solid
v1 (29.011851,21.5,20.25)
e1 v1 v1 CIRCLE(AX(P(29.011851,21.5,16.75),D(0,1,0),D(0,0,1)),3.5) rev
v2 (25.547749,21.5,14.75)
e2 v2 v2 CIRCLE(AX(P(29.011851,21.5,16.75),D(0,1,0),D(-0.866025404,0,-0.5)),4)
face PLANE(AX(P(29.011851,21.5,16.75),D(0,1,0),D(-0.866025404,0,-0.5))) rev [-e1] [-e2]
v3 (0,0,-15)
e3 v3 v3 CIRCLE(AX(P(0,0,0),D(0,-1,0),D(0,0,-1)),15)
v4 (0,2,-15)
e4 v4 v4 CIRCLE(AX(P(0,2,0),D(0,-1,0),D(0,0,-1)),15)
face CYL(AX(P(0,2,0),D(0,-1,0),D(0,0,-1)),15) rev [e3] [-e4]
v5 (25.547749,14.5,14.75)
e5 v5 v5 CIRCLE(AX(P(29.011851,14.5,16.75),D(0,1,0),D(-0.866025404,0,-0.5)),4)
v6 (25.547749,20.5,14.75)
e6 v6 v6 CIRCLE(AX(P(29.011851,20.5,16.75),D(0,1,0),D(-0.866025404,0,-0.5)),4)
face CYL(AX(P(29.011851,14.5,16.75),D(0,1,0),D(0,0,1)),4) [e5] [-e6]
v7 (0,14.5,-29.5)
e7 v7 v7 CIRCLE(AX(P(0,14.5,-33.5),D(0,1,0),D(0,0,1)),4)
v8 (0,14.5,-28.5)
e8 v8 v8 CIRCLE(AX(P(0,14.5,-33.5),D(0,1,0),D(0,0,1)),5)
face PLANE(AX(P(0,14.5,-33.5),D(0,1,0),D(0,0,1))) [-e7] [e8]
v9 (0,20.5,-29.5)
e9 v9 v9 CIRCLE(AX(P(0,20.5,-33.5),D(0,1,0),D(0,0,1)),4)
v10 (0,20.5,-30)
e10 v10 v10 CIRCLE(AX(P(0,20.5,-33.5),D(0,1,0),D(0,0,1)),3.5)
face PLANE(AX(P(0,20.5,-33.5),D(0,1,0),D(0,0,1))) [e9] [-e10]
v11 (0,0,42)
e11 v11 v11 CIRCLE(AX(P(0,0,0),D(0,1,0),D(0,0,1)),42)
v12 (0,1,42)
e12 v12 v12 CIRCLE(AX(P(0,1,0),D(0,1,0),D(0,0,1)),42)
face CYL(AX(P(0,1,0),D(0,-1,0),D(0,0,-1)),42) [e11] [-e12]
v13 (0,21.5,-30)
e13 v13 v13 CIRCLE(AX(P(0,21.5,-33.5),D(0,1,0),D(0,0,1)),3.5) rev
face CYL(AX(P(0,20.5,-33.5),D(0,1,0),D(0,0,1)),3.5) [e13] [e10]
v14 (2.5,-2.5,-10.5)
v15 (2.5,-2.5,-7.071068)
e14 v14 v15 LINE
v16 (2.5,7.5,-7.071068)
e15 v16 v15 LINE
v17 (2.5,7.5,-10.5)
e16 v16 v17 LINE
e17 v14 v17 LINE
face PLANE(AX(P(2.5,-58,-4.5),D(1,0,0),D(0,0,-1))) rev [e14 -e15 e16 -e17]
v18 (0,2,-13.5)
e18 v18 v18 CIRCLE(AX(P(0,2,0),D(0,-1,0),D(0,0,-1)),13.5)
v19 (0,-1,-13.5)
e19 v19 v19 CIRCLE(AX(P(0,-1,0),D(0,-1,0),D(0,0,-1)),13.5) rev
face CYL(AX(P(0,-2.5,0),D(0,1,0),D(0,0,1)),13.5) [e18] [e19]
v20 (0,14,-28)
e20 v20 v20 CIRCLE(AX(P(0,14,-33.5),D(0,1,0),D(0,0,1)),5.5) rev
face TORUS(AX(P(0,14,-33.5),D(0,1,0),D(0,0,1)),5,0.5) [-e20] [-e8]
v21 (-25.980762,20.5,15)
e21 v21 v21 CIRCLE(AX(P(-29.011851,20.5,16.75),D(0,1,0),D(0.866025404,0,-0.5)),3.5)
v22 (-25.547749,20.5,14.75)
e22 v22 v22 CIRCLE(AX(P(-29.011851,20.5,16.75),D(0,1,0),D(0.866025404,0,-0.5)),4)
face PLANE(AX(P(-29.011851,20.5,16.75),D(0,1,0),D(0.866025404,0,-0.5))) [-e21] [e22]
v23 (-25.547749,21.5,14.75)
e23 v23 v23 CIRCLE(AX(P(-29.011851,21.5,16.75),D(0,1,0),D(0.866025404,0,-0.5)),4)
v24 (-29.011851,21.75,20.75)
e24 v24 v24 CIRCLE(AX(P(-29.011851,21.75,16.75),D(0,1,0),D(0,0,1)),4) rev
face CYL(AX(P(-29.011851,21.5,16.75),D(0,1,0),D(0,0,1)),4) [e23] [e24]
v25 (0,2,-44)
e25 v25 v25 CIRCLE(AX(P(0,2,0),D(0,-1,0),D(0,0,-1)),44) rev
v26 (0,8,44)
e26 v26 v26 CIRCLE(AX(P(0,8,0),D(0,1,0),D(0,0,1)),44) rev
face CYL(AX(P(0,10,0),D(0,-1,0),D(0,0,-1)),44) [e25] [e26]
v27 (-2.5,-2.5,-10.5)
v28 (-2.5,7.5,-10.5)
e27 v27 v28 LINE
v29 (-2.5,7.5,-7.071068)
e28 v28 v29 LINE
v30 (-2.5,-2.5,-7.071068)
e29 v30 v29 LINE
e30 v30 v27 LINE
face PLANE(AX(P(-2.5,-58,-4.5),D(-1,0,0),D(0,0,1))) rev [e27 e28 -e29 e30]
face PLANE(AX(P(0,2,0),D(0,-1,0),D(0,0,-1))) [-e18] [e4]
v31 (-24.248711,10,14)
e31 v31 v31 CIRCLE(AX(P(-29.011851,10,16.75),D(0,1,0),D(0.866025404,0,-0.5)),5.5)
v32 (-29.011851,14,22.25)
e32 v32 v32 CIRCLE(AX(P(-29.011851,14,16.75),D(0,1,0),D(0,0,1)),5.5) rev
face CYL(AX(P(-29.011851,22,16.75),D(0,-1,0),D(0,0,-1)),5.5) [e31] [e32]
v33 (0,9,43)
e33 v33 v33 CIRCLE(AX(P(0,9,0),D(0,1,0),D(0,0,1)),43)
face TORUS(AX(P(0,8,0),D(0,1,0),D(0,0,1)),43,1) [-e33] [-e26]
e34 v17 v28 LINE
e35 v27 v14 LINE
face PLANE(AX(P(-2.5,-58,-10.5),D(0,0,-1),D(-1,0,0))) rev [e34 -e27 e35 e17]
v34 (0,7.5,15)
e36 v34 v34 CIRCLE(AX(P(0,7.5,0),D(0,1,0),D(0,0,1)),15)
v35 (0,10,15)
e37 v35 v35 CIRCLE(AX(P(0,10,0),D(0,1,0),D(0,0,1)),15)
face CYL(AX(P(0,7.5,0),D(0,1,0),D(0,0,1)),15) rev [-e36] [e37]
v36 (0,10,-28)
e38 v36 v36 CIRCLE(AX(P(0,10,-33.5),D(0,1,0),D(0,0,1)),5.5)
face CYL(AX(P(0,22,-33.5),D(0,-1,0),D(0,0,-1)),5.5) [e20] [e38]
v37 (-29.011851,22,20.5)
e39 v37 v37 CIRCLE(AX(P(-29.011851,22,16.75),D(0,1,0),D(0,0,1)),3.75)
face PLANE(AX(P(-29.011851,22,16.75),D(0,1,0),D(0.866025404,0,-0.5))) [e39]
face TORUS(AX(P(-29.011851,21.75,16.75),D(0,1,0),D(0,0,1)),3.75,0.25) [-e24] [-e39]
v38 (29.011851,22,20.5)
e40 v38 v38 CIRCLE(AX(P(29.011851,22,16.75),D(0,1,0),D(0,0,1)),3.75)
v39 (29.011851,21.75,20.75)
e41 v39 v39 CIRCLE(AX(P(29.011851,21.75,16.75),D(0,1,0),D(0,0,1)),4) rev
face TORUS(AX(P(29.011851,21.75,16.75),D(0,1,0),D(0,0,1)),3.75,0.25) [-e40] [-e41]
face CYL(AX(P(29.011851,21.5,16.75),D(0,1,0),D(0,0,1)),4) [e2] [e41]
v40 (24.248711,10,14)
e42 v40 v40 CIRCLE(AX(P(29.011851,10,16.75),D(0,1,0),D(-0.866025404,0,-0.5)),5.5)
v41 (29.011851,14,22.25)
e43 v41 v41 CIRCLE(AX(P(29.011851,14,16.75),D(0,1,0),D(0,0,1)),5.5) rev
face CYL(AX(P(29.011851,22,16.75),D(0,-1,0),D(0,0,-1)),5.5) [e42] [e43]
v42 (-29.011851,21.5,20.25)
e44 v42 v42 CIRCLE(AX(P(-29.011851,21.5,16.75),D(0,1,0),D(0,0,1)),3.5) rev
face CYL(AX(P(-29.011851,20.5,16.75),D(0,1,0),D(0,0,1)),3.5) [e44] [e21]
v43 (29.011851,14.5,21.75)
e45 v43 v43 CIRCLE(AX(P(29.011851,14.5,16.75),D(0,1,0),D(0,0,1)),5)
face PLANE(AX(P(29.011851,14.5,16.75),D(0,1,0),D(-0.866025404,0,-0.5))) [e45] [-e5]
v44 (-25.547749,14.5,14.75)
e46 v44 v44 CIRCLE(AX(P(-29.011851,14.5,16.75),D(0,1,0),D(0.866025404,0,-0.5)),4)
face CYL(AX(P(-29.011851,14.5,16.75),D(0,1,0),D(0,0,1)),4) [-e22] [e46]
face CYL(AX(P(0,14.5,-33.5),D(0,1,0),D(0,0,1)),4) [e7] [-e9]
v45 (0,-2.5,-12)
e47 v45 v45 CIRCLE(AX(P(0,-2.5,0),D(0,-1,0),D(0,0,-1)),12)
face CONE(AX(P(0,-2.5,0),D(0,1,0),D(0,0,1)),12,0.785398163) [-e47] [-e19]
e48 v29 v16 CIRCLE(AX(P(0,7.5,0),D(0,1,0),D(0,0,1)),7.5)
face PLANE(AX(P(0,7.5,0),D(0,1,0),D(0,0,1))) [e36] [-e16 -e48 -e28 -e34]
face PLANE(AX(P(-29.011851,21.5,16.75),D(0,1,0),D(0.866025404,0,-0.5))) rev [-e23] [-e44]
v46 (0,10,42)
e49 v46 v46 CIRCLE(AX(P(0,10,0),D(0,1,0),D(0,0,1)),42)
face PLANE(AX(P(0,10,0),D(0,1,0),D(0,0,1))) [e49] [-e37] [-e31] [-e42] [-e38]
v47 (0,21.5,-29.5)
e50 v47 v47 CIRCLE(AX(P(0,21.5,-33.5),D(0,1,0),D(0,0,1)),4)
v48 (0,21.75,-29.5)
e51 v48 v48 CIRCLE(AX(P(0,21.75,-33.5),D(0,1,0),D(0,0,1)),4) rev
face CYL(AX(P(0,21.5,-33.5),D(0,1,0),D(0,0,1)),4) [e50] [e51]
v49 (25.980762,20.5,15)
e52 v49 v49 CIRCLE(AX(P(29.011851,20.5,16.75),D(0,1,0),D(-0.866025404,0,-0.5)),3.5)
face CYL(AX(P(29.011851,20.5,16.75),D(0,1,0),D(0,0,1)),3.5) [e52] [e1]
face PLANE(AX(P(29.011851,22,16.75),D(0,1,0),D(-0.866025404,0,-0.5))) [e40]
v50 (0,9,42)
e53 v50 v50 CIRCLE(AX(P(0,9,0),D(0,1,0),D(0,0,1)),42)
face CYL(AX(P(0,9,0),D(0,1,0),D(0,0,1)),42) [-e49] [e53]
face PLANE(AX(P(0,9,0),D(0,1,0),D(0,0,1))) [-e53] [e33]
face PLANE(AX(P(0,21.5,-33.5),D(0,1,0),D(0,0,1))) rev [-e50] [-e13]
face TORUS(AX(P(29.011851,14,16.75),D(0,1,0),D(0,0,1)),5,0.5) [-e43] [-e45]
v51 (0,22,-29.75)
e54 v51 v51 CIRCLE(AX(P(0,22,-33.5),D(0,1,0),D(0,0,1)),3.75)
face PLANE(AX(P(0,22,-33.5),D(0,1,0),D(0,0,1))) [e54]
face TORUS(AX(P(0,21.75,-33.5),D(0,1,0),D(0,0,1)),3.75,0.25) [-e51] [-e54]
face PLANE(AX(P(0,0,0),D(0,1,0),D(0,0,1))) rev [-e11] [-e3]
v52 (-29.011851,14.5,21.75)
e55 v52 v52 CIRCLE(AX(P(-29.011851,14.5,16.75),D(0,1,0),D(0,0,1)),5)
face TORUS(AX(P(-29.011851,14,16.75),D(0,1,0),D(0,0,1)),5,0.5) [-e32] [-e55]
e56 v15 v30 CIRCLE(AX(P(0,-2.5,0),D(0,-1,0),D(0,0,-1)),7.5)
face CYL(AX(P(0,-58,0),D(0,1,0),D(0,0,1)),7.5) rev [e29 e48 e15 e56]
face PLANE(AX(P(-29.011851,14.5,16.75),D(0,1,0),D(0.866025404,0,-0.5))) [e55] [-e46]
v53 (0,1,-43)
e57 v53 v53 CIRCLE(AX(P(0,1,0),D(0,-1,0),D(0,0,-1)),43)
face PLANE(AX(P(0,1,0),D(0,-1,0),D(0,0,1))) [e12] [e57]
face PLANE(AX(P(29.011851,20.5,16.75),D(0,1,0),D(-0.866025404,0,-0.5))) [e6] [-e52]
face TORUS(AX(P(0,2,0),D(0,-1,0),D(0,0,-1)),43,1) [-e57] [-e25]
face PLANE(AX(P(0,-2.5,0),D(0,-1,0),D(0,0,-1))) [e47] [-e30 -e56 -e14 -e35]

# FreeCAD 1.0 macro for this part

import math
import FreeCAD as App
import Part
import Sketcher

V = App.Vector


def edges_at(feature, points):
    """Names of the edges that pass closest to the given points."""
    edges = feature.Shape.Edges
    near = lambda p: min(range(len(edges)), key=lambda i: edges[i].distToShape(Part.Vertex(*p))[0])
    return sorted({f"Edge{near(p) + 1}" for p in points})


def add_polygon(sketch, points):
    """Adds a closed chain of lines whose ends are joined by coincident constraints."""
    first, n = sketch.GeometryCount, len(points)
    for a, b in zip(points, points[1:] + points[:1]):
        sketch.addGeometry(Part.LineSegment(App.Vector(*a, 0), App.Vector(*b, 0)), False)
    for i in range(n):
        sketch.addConstraint(Sketcher.Constraint("Coincident", first + i, 2, first + (i + 1) % n, 1))

doc = App.newDocument("Part")
body = doc.addObject("PartDesign::Body", "Body")

sketch1 = body.newObject("Sketcher::SketchObject", "Sketch")
sketch1.AttachmentSupport = (doc.getObject("XZ_Plane"), [""])
sketch1.MapMode = "FlatFace"
sketch1.addGeometry(Part.Circle(V(0, 0, 0), V(0, 0, 1), 44), False)
sketch1.addConstraint(Sketcher.Constraint("Coincident", 0, 3, -1, 1))
sketch1.addConstraint(Sketcher.Constraint("Diameter", 0, 88.0))
pad1 = body.newObject("PartDesign::Pad", "Pad")
pad1.Profile = sketch1
pad1.Length = 10
pad1.Reversed = True

sketch2 = body.newObject("Sketcher::SketchObject", "Sketch001")
sketch2.AttachmentSupport = (doc.getObject("XZ_Plane"), [""])
sketch2.MapMode = "FlatFace"
sketch2.AttachmentOffset = App.Placement(V(0, 0, -10), App.Rotation())
sketch2.addGeometry(Part.Circle(V(0, 0, 0), V(0, 0, 1), 44), False)
sketch2.addGeometry(Part.Circle(V(0, 0, 0), V(0, 0, 1), 42), False)
sketch2.addConstraint(Sketcher.Constraint("Coincident", 0, 3, -1, 1))
sketch2.addConstraint(Sketcher.Constraint("Coincident", 1, 3, -1, 1))
sketch2.addConstraint(Sketcher.Constraint("Diameter", 0, 88.0))
sketch2.addConstraint(Sketcher.Constraint("Diameter", 1, 84.0))
pocket1 = body.newObject("PartDesign::Pocket", "Pocket")
pocket1.Profile = sketch2
pocket1.Length = 1
pocket1.Reversed = True
doc.recompute()

datumplane = body.newObject("PartDesign::Plane", "DatumPlane")
datumplane.AttachmentSupport = (doc.getObject("XZ_Plane"), [""])
datumplane.MapMode = "FlatFace"
datumplane.AttachmentOffset = App.Placement(V(0, 0, -5), App.Rotation())
mirrored = body.newObject("PartDesign::Mirrored", "Mirrored")
mirrored.Originals = [pocket1]
mirrored.MirrorPlane = (datumplane, [""])
body.Tip = mirrored
doc.recompute()

fillet = body.newObject("PartDesign::Fillet", "Fillet")
fillet.Base = (mirrored, edges_at(mirrored, [(-44, 1, 0), (-44, 9, 0)]))
fillet.Radius = 1

sketch3 = body.newObject("Sketcher::SketchObject", "Sketch002")
sketch3.AttachmentSupport = (doc.getObject("XZ_Plane"), [""])
sketch3.MapMode = "FlatFace"
sketch3.AttachmentOffset = App.Placement(V(0, 0, -10), App.Rotation())
sketch3.addGeometry(Part.Circle(V(0, 0, 0), V(0, 0, 1), 15), False)
sketch3.addConstraint(Sketcher.Constraint("Coincident", 0, 3, -1, 1))
sketch3.addConstraint(Sketcher.Constraint("Diameter", 0, 30.0))
pocket2 = body.newObject("PartDesign::Pocket", "Pocket001")
pocket2.Profile = sketch3
pocket2.Length = 2.5
pocket2.Reversed = True

sketch4 = body.newObject("Sketcher::SketchObject", "Sketch003")
sketch4.AttachmentSupport = (doc.getObject("XZ_Plane"), [""])
sketch4.MapMode = "FlatFace"
sketch4.AttachmentOffset = App.Placement(V(0, 0, -7.5), App.Rotation())
sketch4.addGeometry(Part.Circle(V(0, 0, 0), V(0, 0, 1), 7.5), False)
sketch4.addConstraint(Sketcher.Constraint("Coincident", 0, 3, -1, 1))
sketch4.addConstraint(Sketcher.Constraint("Diameter", 0, 15.0))
pocket3 = body.newObject("PartDesign::Pocket", "Pocket002")
pocket3.Profile = sketch4
pocket3.Length = 65.5
pocket3.Reversed = True

sketch5 = body.newObject("Sketcher::SketchObject", "Sketch004")
sketch5.AttachmentSupport = (doc.getObject("XZ_Plane"), [""])
sketch5.MapMode = "FlatFace"
sketch5.AttachmentOffset = App.Placement(V(0, 0, -7.5), App.Rotation())
add_polygon(sketch5, [(-2.5, -10.5), (-2.5, -4.5), (2.5, -4.5), (2.5, -10.5)])
sketch5.addConstraint(Sketcher.Constraint("Vertical", 0))
sketch5.addConstraint(Sketcher.Constraint("Horizontal", 1))
sketch5.addConstraint(Sketcher.Constraint("Vertical", 2))
sketch5.addConstraint(Sketcher.Constraint("Horizontal", 3))
sketch5.addConstraint(Sketcher.Constraint("DistanceX", 1, 1, 1, 2, 5.0))
sketch5.addConstraint(Sketcher.Constraint("DistanceY", 0, 1, 0, 2, 6.0))
sketch5.addConstraint(Sketcher.Constraint("DistanceX", 0, 2, -1, 1, 2.5))
sketch5.addConstraint(Sketcher.Constraint("DistanceY", 0, 2, -1, 1, 4.5))
pocket4 = body.newObject("PartDesign::Pocket", "Pocket003")
pocket4.Profile = sketch5
pocket4.Length = 65.5
pocket4.Reversed = True

sketch6 = body.newObject("Sketcher::SketchObject", "Sketch005")
sketch6.AttachmentSupport = (doc.getObject("XZ_Plane"), [""])
sketch6.MapMode = "FlatFace"
sketch6.addGeometry(Part.Circle(V(0, 0, 0), V(0, 0, 1), 15), False)
sketch6.addConstraint(Sketcher.Constraint("Coincident", 0, 3, -1, 1))
sketch6.addConstraint(Sketcher.Constraint("Diameter", 0, 30.0))
pocket5 = body.newObject("PartDesign::Pocket", "Pocket004")
pocket5.Profile = sketch6
pocket5.Length = 2

sketch7 = body.newObject("Sketcher::SketchObject", "Sketch006")
sketch7.AttachmentSupport = (doc.getObject("XZ_Plane"), [""])
sketch7.MapMode = "FlatFace"
sketch7.AttachmentOffset = App.Placement(V(0, 0, -2), App.Rotation())
sketch7.addGeometry(Part.Circle(V(0, 0, 0), V(0, 0, 1), 13.5), False)
sketch7.addGeometry(Part.LineSegment(V(2.5, -7.071068, 0), V(2.5, -10.5, 0)), False)
sketch7.addGeometry(Part.LineSegment(V(2.5, -10.5, 0), V(-2.5, -10.5, 0)), False)
sketch7.addGeometry(Part.LineSegment(V(-2.5, -10.5, 0), V(-2.5, -7.071068, 0)), False)
sketch7.addGeometry(Part.ArcOfCircle(Part.Circle(V(0, 0, 0), V(0, 0, 1), 7.5), math.radians(-70.528779), math.radians(250.528779)), False)
sketch7.addConstraint(Sketcher.Constraint("Coincident", 1, 2, 2, 1))
sketch7.addConstraint(Sketcher.Constraint("Coincident", 2, 2, 3, 1))
sketch7.addConstraint(Sketcher.Constraint("Coincident", 3, 2, 4, 2))
sketch7.addConstraint(Sketcher.Constraint("Coincident", 4, 1, 1, 1))
sketch7.addConstraint(Sketcher.Constraint("Vertical", 1))
sketch7.addConstraint(Sketcher.Constraint("Horizontal", 2))
sketch7.addConstraint(Sketcher.Constraint("Vertical", 3))
sketch7.addConstraint(Sketcher.Constraint("Coincident", 0, 3, -1, 1))
sketch7.addConstraint(Sketcher.Constraint("Coincident", 4, 3, -1, 1))
sketch7.addConstraint(Sketcher.Constraint("Horizontal", 3, 2, 4, 1))
sketch7.addConstraint(Sketcher.Constraint("Diameter", 0, 27.0))
sketch7.addConstraint(Sketcher.Constraint("Radius", 4, 7.5))
sketch7.addConstraint(Sketcher.Constraint("DistanceX", 2, 2, 2, 1, 5.0))
sketch7.addConstraint(Sketcher.Constraint("DistanceY", 1, 2, -1, 1, 10.5))
pad2 = body.newObject("PartDesign::Pad", "Pad001")
pad2.Profile = sketch7
pad2.Length = 4.5
doc.recompute()

chamfer = body.newObject("PartDesign::Chamfer", "Chamfer")
chamfer.Base = (pad2, edges_at(pad2, [(-13.5, -2.5, 0)]))
chamfer.Size = 1.5

sketch8 = body.newObject("Sketcher::SketchObject", "Sketch007")
sketch8.AttachmentSupport = (doc.getObject("XZ_Plane"), [""])
sketch8.MapMode = "FlatFace"
sketch8.AttachmentOffset = App.Placement(V(0, 0, -10), App.Rotation())
sketch8.addGeometry(Part.Circle(V(0, -33.5, 0), V(0, 0, 1), 5.5), False)
sketch8.addConstraint(Sketcher.Constraint("PointOnObject", 0, 3, -2))
sketch8.addConstraint(Sketcher.Constraint("Diameter", 0, 11.0))
sketch8.addConstraint(Sketcher.Constraint("DistanceY", 0, 3, -1, 1, 33.5))
pad3 = body.newObject("PartDesign::Pad", "Pad002")
pad3.Profile = sketch8
pad3.Length = 12
pad3.Reversed = True

sketch9 = body.newObject("Sketcher::SketchObject", "Sketch008")
sketch9.AttachmentSupport = (doc.getObject("XZ_Plane"), [""])
sketch9.MapMode = "FlatFace"
sketch9.AttachmentOffset = App.Placement(V(0, 0, -22), App.Rotation())
sketch9.addGeometry(Part.Circle(V(0, -33.5, 0), V(0, 0, 1), 5.5), False)
sketch9.addGeometry(Part.Circle(V(0, -33.5, 0), V(0, 0, 1), 4), False)
sketch9.addConstraint(Sketcher.Constraint("Coincident", 1, 3, 0, 3))
sketch9.addConstraint(Sketcher.Constraint("PointOnObject", 0, 3, -2))
sketch9.addConstraint(Sketcher.Constraint("Diameter", 0, 11.0))
sketch9.addConstraint(Sketcher.Constraint("Diameter", 1, 8.0))
sketch9.addConstraint(Sketcher.Constraint("DistanceY", 0, 3, -1, 1, 33.5))
pocket6 = body.newObject("PartDesign::Pocket", "Pocket005")
pocket6.Profile = sketch9
pocket6.Length = 7.5
pocket6.Reversed = True
doc.recompute()

fillet2 = body.newObject("PartDesign::Fillet", "Fillet001")
fillet2.Base = (pocket6, edges_at(pocket6, [(-5.5, 14.5, -33.5)]))
fillet2.Radius = 0.5

sketch10 = body.newObject("Sketcher::SketchObject", "Sketch009")
sketch10.AttachmentSupport = (doc.getObject("XZ_Plane"), [""])
sketch10.MapMode = "FlatFace"
sketch10.AttachmentOffset = App.Placement(V(0, 0, -22), App.Rotation())
sketch10.addGeometry(Part.Circle(V(0, -33.5, 0), V(0, 0, 1), 4), False)
sketch10.addGeometry(Part.Circle(V(0, -33.5, 0), V(0, 0, 1), 3.5), False)
sketch10.addConstraint(Sketcher.Constraint("Coincident", 1, 3, 0, 3))
sketch10.addConstraint(Sketcher.Constraint("PointOnObject", 0, 3, -2))
sketch10.addConstraint(Sketcher.Constraint("Diameter", 0, 8.0))
sketch10.addConstraint(Sketcher.Constraint("Diameter", 1, 7.0))
sketch10.addConstraint(Sketcher.Constraint("DistanceY", 0, 3, -1, 1, 33.5))
pocket7 = body.newObject("PartDesign::Pocket", "Pocket006")
pocket7.Profile = sketch10
pocket7.Length = 1.5
pocket7.Reversed = True

sketch11 = body.newObject("Sketcher::SketchObject", "Sketch010")
sketch11.AttachmentSupport = (doc.getObject("XZ_Plane"), [""])
sketch11.MapMode = "FlatFace"
sketch11.AttachmentOffset = App.Placement(V(0, 0, -22), App.Rotation())
sketch11.addGeometry(Part.Circle(V(0, -33.5, 0), V(0, 0, 1), 4), False)
sketch11.addConstraint(Sketcher.Constraint("PointOnObject", 0, 3, -2))
sketch11.addConstraint(Sketcher.Constraint("Diameter", 0, 8.0))
sketch11.addConstraint(Sketcher.Constraint("DistanceY", 0, 3, -1, 1, 33.5))
pad4 = body.newObject("PartDesign::Pad", "Pad003")
pad4.Profile = sketch11
pad4.Length = 0.5
doc.recompute()

fillet3 = body.newObject("PartDesign::Fillet", "Fillet002")
fillet3.Base = (pad4, edges_at(pad4, [(-4, 22, -33.5)]))
fillet3.Radius = 0.25
doc.recompute()

polarpattern = body.newObject("PartDesign::PolarPattern", "PolarPattern")
polarpattern.Originals = [pad3, pocket6, pocket7, pad4]
polarpattern.Axis = (doc.getObject("Y_Axis"), [""])
polarpattern.Angle = 360
polarpattern.Occurrences = 3
body.Tip = polarpattern
doc.recompute()

fillet4 = body.newObject("PartDesign::Fillet", "Fillet003")
fillet4.Base = (polarpattern, edges_at(polarpattern, [(-26.262, 14.5, 21.513), (31.762, 14.5, 11.987)]))
fillet4.Radius = 0.5
doc.recompute()

fillet5 = body.newObject("PartDesign::Fillet", "Fillet004")
fillet5.Base = (fillet4, edges_at(fillet4, [(-27.012, 22, 20.214), (31.012, 22, 13.286)]))
fillet5.Radius = 0.25

doc.recompute()
